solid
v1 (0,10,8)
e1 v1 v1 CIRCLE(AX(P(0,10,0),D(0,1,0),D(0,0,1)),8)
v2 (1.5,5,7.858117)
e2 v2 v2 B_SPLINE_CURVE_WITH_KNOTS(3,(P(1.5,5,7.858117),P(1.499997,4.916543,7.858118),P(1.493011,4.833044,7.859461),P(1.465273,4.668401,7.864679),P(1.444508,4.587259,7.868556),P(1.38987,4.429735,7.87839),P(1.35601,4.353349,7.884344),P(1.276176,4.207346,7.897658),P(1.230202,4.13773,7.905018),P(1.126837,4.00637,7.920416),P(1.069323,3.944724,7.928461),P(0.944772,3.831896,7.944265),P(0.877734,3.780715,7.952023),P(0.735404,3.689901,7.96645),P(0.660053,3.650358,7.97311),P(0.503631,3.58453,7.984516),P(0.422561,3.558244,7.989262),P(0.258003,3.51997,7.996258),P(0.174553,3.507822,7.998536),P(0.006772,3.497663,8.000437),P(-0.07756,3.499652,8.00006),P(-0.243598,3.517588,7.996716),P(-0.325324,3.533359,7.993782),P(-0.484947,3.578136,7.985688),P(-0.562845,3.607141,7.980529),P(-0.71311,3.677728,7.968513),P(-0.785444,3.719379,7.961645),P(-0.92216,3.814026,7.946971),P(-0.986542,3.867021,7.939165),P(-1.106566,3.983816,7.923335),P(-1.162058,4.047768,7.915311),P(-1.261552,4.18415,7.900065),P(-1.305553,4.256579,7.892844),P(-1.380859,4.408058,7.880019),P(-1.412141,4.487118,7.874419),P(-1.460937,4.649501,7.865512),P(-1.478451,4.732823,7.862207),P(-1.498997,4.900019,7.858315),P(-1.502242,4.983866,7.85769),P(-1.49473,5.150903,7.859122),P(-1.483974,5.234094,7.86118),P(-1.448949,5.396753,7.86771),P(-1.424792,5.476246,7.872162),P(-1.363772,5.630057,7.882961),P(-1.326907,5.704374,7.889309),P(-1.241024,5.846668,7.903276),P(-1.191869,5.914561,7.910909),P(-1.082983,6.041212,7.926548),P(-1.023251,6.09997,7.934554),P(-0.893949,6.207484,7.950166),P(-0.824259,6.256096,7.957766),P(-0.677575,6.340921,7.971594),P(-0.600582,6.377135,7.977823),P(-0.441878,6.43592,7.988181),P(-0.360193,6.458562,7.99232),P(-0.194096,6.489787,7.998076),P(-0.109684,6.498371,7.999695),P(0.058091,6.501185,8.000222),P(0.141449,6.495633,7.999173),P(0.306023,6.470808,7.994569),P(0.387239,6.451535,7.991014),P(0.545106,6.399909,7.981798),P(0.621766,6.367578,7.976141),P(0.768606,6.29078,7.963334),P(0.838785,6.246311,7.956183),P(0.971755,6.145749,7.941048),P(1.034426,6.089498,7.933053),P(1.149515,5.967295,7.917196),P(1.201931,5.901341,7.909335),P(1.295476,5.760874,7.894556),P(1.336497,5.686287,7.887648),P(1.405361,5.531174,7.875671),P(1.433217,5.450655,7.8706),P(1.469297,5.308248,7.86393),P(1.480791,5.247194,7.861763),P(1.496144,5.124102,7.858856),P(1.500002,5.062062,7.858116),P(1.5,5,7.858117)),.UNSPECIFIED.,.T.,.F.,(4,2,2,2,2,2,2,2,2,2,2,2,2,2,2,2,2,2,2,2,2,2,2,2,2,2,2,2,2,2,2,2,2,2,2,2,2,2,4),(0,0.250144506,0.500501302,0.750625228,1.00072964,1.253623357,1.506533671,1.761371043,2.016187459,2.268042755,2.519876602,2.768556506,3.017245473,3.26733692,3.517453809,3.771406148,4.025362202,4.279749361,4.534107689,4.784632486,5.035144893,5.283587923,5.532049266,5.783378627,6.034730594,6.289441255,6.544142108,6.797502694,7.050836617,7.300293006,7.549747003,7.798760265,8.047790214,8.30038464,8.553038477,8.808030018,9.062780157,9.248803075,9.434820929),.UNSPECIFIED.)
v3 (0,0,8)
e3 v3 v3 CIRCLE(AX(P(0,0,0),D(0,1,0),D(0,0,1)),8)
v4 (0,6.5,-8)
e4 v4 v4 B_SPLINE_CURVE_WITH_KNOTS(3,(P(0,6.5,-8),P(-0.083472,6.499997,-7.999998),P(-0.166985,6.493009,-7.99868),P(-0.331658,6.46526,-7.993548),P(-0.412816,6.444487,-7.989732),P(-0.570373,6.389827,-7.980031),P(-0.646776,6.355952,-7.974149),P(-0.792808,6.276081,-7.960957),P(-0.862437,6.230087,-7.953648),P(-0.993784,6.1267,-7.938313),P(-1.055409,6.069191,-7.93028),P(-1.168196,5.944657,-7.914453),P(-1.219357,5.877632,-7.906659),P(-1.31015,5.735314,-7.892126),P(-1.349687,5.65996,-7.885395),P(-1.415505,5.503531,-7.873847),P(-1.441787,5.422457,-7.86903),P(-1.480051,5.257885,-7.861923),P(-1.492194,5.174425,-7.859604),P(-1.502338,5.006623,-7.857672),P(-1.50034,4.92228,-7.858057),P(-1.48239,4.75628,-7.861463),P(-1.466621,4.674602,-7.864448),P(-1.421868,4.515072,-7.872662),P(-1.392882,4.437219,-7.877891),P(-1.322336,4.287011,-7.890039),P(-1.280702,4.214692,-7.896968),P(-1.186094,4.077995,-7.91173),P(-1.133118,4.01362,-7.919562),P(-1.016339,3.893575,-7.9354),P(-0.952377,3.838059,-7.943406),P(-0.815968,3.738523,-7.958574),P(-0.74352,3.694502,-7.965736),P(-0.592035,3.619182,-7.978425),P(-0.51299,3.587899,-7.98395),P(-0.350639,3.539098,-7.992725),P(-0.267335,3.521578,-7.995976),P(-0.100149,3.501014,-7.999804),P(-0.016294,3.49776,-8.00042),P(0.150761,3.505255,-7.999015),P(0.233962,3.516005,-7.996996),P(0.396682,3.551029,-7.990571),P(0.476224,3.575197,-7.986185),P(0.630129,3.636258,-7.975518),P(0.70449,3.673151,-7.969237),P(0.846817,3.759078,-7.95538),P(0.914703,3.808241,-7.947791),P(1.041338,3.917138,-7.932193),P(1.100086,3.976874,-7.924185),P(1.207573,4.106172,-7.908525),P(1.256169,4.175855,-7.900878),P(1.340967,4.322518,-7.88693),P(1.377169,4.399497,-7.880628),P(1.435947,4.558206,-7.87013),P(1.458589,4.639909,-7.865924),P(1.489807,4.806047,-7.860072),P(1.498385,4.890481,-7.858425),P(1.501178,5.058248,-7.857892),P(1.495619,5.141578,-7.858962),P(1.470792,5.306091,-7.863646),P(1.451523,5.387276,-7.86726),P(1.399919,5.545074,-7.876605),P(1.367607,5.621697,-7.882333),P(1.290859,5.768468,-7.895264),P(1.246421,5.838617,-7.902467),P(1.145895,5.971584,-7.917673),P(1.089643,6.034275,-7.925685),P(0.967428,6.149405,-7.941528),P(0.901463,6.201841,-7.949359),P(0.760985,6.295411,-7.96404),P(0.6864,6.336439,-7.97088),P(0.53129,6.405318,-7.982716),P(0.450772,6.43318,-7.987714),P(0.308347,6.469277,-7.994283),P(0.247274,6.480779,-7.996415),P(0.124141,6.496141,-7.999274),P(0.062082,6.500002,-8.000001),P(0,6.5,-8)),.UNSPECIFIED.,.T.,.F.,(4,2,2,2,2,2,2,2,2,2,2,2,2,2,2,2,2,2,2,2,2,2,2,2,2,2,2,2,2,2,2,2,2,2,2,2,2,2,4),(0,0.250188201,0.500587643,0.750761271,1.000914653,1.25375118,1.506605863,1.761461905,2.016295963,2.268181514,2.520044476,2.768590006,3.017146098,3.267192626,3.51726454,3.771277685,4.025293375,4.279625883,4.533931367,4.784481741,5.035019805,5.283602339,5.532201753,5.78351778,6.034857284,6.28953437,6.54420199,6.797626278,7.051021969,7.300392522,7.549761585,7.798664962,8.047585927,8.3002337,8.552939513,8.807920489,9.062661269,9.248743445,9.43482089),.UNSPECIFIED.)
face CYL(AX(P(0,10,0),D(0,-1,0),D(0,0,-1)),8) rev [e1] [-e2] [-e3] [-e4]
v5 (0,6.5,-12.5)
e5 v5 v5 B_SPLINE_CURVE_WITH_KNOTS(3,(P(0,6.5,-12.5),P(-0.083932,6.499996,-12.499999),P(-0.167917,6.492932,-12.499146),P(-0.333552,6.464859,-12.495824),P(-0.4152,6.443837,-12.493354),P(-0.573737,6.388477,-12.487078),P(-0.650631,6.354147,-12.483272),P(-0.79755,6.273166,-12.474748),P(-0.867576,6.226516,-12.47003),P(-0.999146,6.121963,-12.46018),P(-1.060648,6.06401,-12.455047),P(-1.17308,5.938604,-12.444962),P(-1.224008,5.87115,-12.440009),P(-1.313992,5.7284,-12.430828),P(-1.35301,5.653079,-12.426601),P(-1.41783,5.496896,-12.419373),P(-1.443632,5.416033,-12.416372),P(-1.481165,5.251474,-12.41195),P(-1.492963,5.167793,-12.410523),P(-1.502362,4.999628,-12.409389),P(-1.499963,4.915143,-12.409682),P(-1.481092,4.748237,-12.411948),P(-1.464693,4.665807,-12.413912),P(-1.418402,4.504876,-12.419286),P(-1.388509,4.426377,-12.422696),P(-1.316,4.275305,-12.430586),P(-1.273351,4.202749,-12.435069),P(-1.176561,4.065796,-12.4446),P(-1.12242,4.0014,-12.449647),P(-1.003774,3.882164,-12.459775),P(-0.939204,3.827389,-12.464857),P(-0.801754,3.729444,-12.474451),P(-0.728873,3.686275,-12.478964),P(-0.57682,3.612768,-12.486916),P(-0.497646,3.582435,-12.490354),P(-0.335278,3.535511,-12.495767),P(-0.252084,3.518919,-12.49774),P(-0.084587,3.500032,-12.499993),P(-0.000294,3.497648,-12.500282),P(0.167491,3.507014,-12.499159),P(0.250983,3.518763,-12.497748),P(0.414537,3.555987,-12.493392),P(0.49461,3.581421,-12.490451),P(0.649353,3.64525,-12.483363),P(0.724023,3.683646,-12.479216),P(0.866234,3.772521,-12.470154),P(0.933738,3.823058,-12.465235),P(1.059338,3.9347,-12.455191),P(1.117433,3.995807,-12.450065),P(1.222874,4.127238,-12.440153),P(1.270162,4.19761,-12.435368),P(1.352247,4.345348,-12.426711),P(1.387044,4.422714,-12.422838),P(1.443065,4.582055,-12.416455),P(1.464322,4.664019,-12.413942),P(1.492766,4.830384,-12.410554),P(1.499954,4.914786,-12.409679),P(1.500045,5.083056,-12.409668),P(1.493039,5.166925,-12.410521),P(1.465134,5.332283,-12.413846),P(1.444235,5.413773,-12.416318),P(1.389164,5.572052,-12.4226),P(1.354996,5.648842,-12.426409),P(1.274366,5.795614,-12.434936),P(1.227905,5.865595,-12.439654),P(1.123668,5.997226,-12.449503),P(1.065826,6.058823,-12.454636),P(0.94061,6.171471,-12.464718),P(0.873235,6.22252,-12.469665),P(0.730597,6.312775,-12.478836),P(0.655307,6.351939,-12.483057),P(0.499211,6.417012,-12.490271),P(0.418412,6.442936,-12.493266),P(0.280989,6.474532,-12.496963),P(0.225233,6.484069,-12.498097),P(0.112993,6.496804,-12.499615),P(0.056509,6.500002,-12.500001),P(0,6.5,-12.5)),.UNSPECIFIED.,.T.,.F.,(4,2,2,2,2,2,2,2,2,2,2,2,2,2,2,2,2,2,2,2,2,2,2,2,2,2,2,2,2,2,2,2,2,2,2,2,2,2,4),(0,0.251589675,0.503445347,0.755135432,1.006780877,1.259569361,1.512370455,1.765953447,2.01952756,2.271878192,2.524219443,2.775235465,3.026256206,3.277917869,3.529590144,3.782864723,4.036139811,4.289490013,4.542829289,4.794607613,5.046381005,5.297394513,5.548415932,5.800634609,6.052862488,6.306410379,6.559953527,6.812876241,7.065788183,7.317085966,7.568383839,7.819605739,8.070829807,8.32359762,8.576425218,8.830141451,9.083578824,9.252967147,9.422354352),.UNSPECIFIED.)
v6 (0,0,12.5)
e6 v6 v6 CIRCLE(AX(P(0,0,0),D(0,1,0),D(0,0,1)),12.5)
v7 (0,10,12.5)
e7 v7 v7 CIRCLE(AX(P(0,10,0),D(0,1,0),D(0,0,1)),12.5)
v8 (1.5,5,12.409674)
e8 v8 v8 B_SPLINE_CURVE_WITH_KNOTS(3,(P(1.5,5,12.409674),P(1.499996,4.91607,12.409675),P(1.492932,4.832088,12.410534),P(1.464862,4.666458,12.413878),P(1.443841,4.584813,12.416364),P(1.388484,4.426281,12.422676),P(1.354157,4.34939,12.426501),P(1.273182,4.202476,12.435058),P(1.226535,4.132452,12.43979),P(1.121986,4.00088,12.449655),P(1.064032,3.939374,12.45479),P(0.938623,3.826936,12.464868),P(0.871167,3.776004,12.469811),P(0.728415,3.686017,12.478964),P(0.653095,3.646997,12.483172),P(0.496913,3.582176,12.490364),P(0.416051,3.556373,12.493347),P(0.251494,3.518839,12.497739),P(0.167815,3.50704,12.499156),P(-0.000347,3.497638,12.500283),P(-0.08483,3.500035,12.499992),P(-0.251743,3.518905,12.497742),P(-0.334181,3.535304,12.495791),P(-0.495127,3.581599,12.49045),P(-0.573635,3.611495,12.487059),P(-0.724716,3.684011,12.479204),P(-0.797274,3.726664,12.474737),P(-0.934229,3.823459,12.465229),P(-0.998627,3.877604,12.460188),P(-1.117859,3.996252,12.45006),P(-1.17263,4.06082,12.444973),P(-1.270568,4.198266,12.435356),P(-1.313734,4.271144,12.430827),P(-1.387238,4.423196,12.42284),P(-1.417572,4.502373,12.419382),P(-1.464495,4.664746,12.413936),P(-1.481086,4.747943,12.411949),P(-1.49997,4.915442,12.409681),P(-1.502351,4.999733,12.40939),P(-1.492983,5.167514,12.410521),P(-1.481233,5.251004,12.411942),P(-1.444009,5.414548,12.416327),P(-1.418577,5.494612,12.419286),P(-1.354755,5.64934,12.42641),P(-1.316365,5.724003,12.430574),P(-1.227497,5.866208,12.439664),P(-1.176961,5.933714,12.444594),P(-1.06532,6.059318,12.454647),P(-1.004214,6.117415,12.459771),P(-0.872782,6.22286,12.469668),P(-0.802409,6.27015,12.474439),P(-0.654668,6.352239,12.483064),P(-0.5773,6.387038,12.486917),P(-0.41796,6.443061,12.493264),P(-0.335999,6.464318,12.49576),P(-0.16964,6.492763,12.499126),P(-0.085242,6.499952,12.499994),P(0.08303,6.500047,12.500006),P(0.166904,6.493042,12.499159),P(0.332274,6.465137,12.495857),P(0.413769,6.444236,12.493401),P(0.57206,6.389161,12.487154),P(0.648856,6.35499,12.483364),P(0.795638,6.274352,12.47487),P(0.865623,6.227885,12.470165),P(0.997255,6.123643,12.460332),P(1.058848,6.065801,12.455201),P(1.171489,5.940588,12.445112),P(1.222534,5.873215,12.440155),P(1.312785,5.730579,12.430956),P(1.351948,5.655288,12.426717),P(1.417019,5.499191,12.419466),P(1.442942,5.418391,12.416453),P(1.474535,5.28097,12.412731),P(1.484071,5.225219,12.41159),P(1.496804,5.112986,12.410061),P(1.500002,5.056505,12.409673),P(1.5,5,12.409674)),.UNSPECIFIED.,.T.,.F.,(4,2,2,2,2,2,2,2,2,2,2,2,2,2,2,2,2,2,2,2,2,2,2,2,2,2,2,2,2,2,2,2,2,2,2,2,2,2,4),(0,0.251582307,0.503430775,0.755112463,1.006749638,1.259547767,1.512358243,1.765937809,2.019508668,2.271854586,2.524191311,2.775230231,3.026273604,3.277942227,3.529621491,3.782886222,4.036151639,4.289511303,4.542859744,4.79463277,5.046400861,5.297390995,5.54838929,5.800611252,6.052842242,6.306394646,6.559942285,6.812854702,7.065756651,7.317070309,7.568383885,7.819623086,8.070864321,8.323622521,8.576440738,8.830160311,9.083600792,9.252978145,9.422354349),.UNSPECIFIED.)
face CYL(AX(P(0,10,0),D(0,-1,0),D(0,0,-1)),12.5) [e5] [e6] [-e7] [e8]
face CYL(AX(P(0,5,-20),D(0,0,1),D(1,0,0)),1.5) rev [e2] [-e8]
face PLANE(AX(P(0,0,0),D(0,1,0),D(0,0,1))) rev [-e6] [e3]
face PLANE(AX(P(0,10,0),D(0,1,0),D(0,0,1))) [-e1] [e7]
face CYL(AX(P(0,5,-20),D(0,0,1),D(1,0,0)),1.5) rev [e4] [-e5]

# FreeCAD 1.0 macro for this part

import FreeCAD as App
import Part
import Sketcher
from FreeCAD import Vector

doc = App.newDocument("Part")
body = doc.addObject("PartDesign::Body", "Body")

sketch1 = body.newObject("Sketcher::SketchObject", "Sketch")
sketch1.AttachmentSupport = (doc.getObject("XZ_Plane"), [""])
sketch1.MapMode = "FlatFace"
sketch1.addGeometry([
    Part.Circle(Vector(0, 0, 0), Vector(0, 0, 1), 12),
    Part.Circle(Vector(0, 0, 0), Vector(0, 0, 1), 8),
], False)
sketch1.addConstraint([
    Sketcher.Constraint("Coincident", 0, 3, -1, 1),
    Sketcher.Constraint("Coincident", 1, 3, -1, 1),
    Sketcher.Constraint("Diameter", 0, 25.0),
    Sketcher.Constraint("Diameter", 1, 16.0),
])
pad1 = body.newObject("PartDesign::Pad", "Pad")
pad1.Profile = sketch1
pad1.Length = 10
pad1.Reversed = True

sketch2 = body.newObject("Sketcher::SketchObject", "Sketch001")
sketch2.AttachmentSupport = (doc.getObject("XY_Plane"), [""])
sketch2.MapMode = "FlatFace"
sketch2.addGeometry(Part.Circle(Vector(0, 5, 0), Vector(0, 0, 1), 1.5), False)
sketch2.addConstraint([
    Sketcher.Constraint("PointOnObject", 0, 3, -2),
    Sketcher.Constraint("Diameter", 0, 3.0),
    Sketcher.Constraint("DistanceY", -1, 1, 0, 3, 5.0),
])
pocket1 = body.newObject("PartDesign::Pocket", "Pocket")
pocket1.Profile = sketch2
pocket1.Length = 40
pocket1.Midplane = True

doc.recompute()
